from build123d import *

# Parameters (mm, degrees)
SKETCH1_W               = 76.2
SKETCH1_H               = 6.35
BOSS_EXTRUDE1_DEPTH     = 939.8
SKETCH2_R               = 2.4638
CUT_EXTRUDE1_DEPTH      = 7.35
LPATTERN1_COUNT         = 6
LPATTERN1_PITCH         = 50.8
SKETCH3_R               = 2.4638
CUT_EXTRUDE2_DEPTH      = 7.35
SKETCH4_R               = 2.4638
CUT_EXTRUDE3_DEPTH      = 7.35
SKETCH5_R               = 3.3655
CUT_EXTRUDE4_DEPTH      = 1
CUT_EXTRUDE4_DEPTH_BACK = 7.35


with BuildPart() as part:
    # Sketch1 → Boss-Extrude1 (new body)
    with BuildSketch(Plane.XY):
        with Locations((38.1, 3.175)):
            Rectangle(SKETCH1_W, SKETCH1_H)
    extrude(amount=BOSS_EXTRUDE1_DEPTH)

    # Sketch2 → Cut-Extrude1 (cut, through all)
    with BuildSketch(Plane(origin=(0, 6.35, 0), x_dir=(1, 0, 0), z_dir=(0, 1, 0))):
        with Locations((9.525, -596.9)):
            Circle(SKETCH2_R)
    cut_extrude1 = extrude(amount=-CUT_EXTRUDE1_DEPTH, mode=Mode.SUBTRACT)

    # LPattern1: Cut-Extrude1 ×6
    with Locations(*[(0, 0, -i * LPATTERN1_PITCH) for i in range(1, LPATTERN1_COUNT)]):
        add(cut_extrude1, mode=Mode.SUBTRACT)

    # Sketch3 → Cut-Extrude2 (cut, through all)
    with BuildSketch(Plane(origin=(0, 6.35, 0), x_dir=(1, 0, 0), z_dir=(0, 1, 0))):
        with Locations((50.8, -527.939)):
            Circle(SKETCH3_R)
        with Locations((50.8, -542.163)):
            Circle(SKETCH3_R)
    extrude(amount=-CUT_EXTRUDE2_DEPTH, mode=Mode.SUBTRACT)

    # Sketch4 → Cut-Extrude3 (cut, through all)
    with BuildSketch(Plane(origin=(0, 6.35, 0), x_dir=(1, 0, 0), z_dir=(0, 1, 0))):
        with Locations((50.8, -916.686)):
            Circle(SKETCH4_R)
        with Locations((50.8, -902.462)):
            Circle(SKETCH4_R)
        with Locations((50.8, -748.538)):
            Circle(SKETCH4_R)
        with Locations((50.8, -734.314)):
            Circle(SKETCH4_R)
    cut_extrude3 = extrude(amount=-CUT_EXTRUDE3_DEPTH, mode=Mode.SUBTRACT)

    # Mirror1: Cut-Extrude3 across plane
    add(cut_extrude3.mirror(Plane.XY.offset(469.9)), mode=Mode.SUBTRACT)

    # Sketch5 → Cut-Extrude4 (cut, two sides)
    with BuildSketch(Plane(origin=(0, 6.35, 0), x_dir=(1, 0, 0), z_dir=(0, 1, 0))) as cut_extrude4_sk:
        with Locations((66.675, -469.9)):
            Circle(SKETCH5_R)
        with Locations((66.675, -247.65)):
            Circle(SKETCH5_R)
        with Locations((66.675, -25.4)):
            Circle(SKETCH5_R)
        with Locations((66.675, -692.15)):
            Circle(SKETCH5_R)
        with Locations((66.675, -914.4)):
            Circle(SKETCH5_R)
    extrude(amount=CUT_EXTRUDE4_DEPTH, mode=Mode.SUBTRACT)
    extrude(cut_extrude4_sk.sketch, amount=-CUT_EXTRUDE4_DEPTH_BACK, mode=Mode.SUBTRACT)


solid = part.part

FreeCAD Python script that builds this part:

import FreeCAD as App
import Part
import Sketcher

V = App.Vector
Q = App.Units.Quantity


def add_polygon(sketch, points):
    """Adds a closed chain of lines whose ends are joined by coincident constraints."""
    first, n = sketch.GeometryCount, len(points)
    for a, b in zip(points, points[1:] + points[:1]):
        sketch.addGeometry(Part.LineSegment(App.Vector(*a, 0), App.Vector(*b, 0)), False)
    for i in range(n):
        sketch.addConstraint(Sketcher.Constraint("Coincident", first + i, 2, first + (i + 1) % n, 1))

doc = App.newDocument("Part")
params = doc.addObject("Spreadsheet::Sheet", "Params")
for row, (alias, value) in enumerate([
    ("sketch1_width", "3 in"),
    ("sketch1_height", "0.25 in"),
    ("pad1_length", "37 in"),
    ("sketch2_diameter", "0.194 in"),
    ("linearpattern_pitch", "2 in"),
    ("sketch3_diameter", "0.194 in"),
    ("sketch4_diameter", "0.194 in"),
    ("sketch5_diameter", "0.265 in"),
], start=1):
    params.set(f"A{row}", alias)
    params.set(f"B{row}", "=" + value)
    params.setAlias(f"B{row}", alias)

body = doc.addObject("PartDesign::Body", "Body")

# Sketch on XY plane
sketch1 = body.newObject("Sketcher::SketchObject", "Sketch")
sketch1.AttachmentSupport = (doc.getObject("XY_Plane"), [""])
sketch1.MapMode = "FlatFace"
add_polygon(sketch1, [(0, 6), (0, 0), (76, 0), (76, 6)])  # lines 0-3
sketch1.addConstraint([
    Sketcher.Constraint("Vertical", 0),
    Sketcher.Constraint("Horizontal", 1),
    Sketcher.Constraint("Vertical", 2),
    Sketcher.Constraint("Horizontal", 3),
    Sketcher.Constraint("Coincident", 0, 2, -1, 1),
    Sketcher.Constraint("DistanceX", 1, 1, 1, 2, Q("3 in")),
    Sketcher.Constraint("DistanceY", 0, 2, 0, 1, Q("0.25 in")),
])
sketch1.setExpression("Constraints[9]", "Params.sketch1_width")
sketch1.setExpression("Constraints[10]", "Params.sketch1_height")
pad1 = body.newObject("PartDesign::Pad", "Pad")
pad1.Profile = sketch1
pad1.setExpression("Length", "Params.pad1_length")

# Sketch on XZ plane
sketch2 = body.newObject("Sketcher::SketchObject", "Sketch001")
sketch2.AttachmentSupport = (doc.getObject("XZ_Plane"), [""])
sketch2.MapMode = "FlatFace"
sketch2.AttachmentOffset = App.Placement(V(0, 0, -0.25 * 25.4), App.Rotation())
sketch2.addGeometry(Part.Circle(V(9.5, 596.9, 0), V(0, 0, 1), 2.5), False)
sketch2.addConstraint([
    Sketcher.Constraint("Diameter", 0, Q("0.194 in")),
    Sketcher.Constraint("DistanceY", -1, 1, 0, 3, Q("23.5 in")),
    Sketcher.Constraint("DistanceX", -1, 1, 0, 3, Q("0.375 in")),
])
sketch2.setExpression("Constraints[0]", "Params.sketch2_diameter")
pocket1 = body.newObject("PartDesign::Pocket", "Pocket")
pocket1.Profile = sketch2
pocket1.Type = "ThroughAll"
pocket1.Reversed = True
doc.recompute()

linearpattern = body.newObject("PartDesign::LinearPattern", "LinearPattern")
linearpattern.Originals = [pocket1]
linearpattern.Direction = (doc.getObject("Z_Axis"), [""])
linearpattern.Mode = "offset"
linearpattern.setExpression("Offset", "Params.linearpattern_pitch")
linearpattern.Occurrences = 6
linearpattern.Reversed = True
body.Tip = linearpattern

# Sketch on XZ plane
sketch3 = body.newObject("Sketcher::SketchObject", "Sketch002")
sketch3.AttachmentSupport = (doc.getObject("XZ_Plane"), [""])
sketch3.MapMode = "FlatFace"
sketch3.AttachmentOffset = App.Placement(V(0, 0, -0.25 * 25.4), App.Rotation())
sketch3.addGeometry([
    Part.Circle(V(50.8, 527.9, 0), V(0, 0, 1), 2.5),
    Part.Circle(V(50.8, 542.2, 0), V(0, 0, 1), 2.5),
], False)
sketch3.addConstraint([
    Sketcher.Constraint("Equal", 0, 1),
    Sketcher.Constraint("Vertical", 0, 3, 1, 3),
    Sketcher.Constraint("Diameter", 0, Q("0.194 in")),
    Sketcher.Constraint("DistanceX", -1, 1, 0, 3, Q("2 in")),
    Sketcher.Constraint("DistanceY", 0, 3, 1, 3, Q("0.56 in")),
    Sketcher.Constraint("DistanceY", -1, 1, 0, 3, Q("20.785 in")),
])
sketch3.setExpression("Constraints[2]", "Params.sketch3_diameter")
pocket2 = body.newObject("PartDesign::Pocket", "Pocket001")
pocket2.Profile = sketch3
pocket2.Type = "ThroughAll"
pocket2.Reversed = True

# Sketch on XZ plane
sketch4 = body.newObject("Sketcher::SketchObject", "Sketch003")
sketch4.AttachmentSupport = (doc.getObject("XZ_Plane"), [""])
sketch4.MapMode = "FlatFace"
sketch4.AttachmentOffset = App.Placement(V(0, 0, -0.25 * 25.4), App.Rotation())
sketch4.addGeometry([
    Part.Circle(V(50.8, 916.7, 0), V(0, 0, 1), 2.5),
    Part.Circle(V(50.8, 902.5, 0), V(0, 0, 1), 2.5),
    Part.Circle(V(50.8, 748.5, 0), V(0, 0, 1), 2.5),
    Part.Circle(V(50.8, 734.3, 0), V(0, 0, 1), 2.5),
], False)
sketch4.addConstraint([
    Sketcher.Constraint("Equal", 0, 1),
    Sketcher.Constraint("Equal", 1, 2),
    Sketcher.Constraint("Equal", 2, 3),
    Sketcher.Constraint("Vertical", 0, 3, 1, 3),
    Sketcher.Constraint("Vertical", 1, 3, 2, 3),
    Sketcher.Constraint("Vertical", 2, 3, 3, 3),
    Sketcher.Constraint("Diameter", 0, Q("0.194 in")),
    Sketcher.Constraint("DistanceX", -1, 1, 0, 3, Q("2 in")),
    Sketcher.Constraint("DistanceY", -1, 1, 0, 3, Q("36.09 in")),
    Sketcher.Constraint("DistanceY", -1, 1, 1, 3, Q("35.53 in")),
    Sketcher.Constraint("DistanceY", -1, 1, 2, 3, Q("29.47 in")),
    Sketcher.Constraint("DistanceY", -1, 1, 3, 3, Q("28.91 in")),
])
sketch4.setExpression("Constraints[6]", "Params.sketch4_diameter")
pocket3 = body.newObject("PartDesign::Pocket", "Pocket002")
pocket3.Profile = sketch4
pocket3.Type = "ThroughAll"
pocket3.Reversed = True
doc.recompute()

datumplane = body.newObject("PartDesign::Plane", "DatumPlane")
datumplane.AttachmentSupport = (doc.getObject("XY_Plane"), [""])
datumplane.MapMode = "FlatFace"
datumplane.AttachmentOffset = App.Placement(V(0, 0, 18.5 * 25.4), App.Rotation())
mirrored = body.newObject("PartDesign::Mirrored", "Mirrored")
mirrored.Originals = [pocket3]
mirrored.MirrorPlane = (datumplane, [""])
body.Tip = mirrored

# Sketch on XZ plane
sketch5 = body.newObject("Sketcher::SketchObject", "Sketch004")
sketch5.AttachmentSupport = (doc.getObject("XZ_Plane"), [""])
sketch5.MapMode = "FlatFace"
sketch5.AttachmentOffset = App.Placement(V(0, 0, -0.25 * 25.4), App.Rotation())
sketch5.addGeometry([
    Part.Circle(V(66.7, 469.9, 0), V(0, 0, 1), 3.4),  # 0
    Part.Circle(V(66.7, 247.7, 0), V(0, 0, 1), 3.4),  # 1
    Part.Circle(V(66.7, 25.4, 0), V(0, 0, 1), 3.4),  # 2
    Part.Circle(V(66.7, 692.1, 0), V(0, 0, 1), 3.4),  # 3
    Part.Circle(V(66.7, 914.4, 0), V(0, 0, 1), 3.4),  # 4
], False)
sketch5.addConstraint([
    Sketcher.Constraint("Equal", 0, 1),
    Sketcher.Constraint("Equal", 1, 2),
    Sketcher.Constraint("Equal", 2, 3),
    Sketcher.Constraint("Equal", 3, 4),
    Sketcher.Constraint("Vertical", 0, 3, 1, 3),
    Sketcher.Constraint("Vertical", 1, 3, 2, 3),
    Sketcher.Constraint("Vertical", 2, 3, 3, 3),
    Sketcher.Constraint("Vertical", 3, 3, 4, 3),
    Sketcher.Constraint("Diameter", 0, Q("0.265 in")),
    Sketcher.Constraint("DistanceY", -1, 1, 2, 3, Q("1 in")),
    Sketcher.Constraint("DistanceY", -1, 1, 4, 3, Q("36 in")),
    Sketcher.Constraint("DistanceY", -1, 1, 0, 3, Q("18.5 in")),
    Sketcher.Constraint("DistanceY", 1, 3, 3, 3, Q("17.5 in")),
    Sketcher.Constraint("DistanceY", -1, 1, 1, 3, Q("9.75 in")),
    Sketcher.Constraint("DistanceX", -1, 1, 0, 3, Q("2.625 in")),
])
sketch5.setExpression("Constraints[8]", "Params.sketch5_diameter")
pocket4 = body.newObject("PartDesign::Pocket", "Pocket003")
pocket4.Profile = sketch5
pocket4.Type = "ThroughAll"
pocket4.Midplane = True

doc.recompute()
